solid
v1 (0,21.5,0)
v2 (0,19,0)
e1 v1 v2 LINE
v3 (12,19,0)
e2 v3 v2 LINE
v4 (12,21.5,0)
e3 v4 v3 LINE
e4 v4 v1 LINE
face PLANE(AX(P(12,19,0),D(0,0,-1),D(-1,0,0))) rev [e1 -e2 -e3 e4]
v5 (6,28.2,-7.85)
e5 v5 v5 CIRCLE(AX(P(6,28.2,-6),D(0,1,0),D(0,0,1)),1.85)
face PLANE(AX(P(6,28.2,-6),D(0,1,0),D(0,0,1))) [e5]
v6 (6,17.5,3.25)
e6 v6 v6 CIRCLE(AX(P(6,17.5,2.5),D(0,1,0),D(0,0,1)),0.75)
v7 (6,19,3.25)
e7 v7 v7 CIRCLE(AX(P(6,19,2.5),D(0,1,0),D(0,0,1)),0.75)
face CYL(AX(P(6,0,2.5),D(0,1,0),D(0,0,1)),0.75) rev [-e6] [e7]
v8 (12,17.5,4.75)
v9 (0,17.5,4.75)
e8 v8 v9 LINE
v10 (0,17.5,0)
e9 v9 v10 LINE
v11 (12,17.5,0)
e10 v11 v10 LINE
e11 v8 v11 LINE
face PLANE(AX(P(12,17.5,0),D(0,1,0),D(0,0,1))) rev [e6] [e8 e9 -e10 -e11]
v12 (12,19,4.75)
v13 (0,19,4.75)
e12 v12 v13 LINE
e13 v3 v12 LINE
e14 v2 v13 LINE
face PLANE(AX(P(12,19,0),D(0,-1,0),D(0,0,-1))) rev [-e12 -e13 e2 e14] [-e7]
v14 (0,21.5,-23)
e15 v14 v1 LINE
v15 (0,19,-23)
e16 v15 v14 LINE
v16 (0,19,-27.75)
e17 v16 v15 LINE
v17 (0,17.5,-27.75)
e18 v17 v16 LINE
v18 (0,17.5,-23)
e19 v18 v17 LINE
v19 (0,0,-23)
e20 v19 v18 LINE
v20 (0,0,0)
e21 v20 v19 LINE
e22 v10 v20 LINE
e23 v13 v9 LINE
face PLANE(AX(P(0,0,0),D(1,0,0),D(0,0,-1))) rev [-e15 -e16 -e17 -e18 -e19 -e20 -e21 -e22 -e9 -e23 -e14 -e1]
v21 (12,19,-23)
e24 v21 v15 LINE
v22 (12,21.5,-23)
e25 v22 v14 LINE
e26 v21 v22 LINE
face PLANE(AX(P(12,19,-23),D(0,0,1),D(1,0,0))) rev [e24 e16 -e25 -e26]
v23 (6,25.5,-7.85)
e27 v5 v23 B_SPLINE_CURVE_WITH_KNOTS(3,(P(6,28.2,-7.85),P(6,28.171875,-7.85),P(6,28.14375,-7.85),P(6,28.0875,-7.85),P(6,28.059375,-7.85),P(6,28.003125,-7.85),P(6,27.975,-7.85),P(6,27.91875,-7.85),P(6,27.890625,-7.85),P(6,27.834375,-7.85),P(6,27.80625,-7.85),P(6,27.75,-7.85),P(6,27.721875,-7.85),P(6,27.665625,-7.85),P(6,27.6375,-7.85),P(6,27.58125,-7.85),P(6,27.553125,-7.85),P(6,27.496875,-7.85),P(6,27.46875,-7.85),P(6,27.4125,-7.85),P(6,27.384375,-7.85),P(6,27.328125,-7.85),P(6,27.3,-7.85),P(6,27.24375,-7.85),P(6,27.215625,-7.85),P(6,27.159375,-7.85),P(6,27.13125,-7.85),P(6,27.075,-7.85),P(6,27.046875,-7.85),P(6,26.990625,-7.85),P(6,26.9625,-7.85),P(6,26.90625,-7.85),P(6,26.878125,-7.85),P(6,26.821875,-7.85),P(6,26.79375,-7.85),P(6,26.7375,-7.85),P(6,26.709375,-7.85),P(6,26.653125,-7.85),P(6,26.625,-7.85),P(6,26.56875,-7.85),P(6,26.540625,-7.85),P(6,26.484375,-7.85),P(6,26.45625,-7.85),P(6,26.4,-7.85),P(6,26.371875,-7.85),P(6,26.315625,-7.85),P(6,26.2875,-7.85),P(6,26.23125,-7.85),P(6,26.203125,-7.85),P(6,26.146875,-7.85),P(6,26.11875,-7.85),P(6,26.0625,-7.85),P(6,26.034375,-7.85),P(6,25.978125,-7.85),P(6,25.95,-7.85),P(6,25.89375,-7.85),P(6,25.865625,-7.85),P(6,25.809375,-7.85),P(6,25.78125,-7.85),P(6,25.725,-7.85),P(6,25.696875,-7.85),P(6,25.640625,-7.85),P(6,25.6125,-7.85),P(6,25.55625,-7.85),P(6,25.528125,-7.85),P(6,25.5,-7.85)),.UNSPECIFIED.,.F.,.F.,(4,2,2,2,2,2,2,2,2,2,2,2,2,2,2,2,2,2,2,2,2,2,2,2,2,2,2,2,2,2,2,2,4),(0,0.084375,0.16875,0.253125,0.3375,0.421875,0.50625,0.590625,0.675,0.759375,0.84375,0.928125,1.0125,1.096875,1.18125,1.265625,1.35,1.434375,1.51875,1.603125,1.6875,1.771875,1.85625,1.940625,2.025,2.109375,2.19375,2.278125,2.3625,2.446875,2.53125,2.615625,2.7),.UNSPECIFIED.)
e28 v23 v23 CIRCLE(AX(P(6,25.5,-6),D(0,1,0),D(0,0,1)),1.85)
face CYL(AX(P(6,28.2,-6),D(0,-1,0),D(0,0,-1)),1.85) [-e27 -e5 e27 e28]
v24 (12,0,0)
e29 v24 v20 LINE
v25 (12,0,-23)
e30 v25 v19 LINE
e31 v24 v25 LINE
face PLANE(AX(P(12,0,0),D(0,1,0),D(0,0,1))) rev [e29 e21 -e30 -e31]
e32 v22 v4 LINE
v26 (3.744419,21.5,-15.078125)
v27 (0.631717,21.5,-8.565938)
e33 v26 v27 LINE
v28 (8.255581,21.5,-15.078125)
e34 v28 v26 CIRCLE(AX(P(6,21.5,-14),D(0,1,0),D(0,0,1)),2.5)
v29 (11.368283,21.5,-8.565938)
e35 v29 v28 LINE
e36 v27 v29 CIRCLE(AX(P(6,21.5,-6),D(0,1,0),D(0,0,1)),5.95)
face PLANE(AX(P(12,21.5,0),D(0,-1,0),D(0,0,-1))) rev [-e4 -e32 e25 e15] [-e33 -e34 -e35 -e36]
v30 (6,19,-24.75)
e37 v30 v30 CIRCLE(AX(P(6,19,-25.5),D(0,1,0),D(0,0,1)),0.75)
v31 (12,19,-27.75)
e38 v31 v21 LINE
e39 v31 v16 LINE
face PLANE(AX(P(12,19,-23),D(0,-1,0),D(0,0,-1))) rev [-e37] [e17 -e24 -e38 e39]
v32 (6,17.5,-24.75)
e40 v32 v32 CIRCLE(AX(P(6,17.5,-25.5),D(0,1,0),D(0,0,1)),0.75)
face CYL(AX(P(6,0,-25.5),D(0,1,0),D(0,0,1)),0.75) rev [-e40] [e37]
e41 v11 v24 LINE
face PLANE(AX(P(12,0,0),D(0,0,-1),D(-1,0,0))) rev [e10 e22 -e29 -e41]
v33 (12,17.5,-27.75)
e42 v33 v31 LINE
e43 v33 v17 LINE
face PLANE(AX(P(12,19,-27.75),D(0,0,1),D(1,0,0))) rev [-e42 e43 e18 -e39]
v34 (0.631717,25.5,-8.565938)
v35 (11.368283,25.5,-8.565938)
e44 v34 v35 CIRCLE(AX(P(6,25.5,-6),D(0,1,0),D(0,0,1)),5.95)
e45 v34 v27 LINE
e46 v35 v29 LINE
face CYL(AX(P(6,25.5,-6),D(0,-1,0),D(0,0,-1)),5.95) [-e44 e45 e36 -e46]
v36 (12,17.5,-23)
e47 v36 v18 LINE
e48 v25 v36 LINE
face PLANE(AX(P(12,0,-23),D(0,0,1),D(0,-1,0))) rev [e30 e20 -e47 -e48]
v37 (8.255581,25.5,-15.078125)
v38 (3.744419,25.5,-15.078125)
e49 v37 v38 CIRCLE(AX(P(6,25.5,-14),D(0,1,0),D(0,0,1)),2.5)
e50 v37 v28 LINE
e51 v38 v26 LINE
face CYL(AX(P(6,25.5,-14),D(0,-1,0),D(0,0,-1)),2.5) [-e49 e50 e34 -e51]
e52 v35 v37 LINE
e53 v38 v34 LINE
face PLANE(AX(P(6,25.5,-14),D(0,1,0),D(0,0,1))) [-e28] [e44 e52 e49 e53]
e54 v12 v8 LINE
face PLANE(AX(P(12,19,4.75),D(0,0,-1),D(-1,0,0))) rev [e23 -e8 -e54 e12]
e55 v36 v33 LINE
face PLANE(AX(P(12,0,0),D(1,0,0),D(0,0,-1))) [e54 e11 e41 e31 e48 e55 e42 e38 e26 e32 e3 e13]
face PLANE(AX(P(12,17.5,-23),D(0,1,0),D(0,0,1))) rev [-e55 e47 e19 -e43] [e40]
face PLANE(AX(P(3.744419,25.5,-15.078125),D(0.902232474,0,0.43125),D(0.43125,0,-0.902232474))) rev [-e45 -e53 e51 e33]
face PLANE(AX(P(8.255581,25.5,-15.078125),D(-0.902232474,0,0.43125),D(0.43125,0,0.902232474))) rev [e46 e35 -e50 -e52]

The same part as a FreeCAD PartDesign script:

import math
import FreeCAD as App
import Part
import Sketcher

doc = App.newDocument("Part")
body = doc.addObject("PartDesign::Body", "Body")

# Sketch on YZ plane
sketch1 = body.newObject("Sketcher::SketchObject", "Sketch")
sketch1.AttachmentSupport = (doc.getObject("YZ_Plane"), [""])
sketch1.MapMode = "FlatFace"
sketch1.addGeometry(Part.LineSegment(App.Vector(0, 0, 0), App.Vector(0, -23, 0)), False)
sketch1.addGeometry(Part.LineSegment(App.Vector(0, -23, 0), App.Vector(17.5, -23, 0)), False)
sketch1.addGeometry(Part.LineSegment(App.Vector(17.5, -23, 0), App.Vector(17.5, -27.75, 0)), False)
sketch1.addGeometry(Part.LineSegment(App.Vector(17.5, -27.75, 0), App.Vector(19, -27.75, 0)), False)
sketch1.addGeometry(Part.LineSegment(App.Vector(19, -27.75, 0), App.Vector(19, -23, 0)), False)
sketch1.addGeometry(Part.LineSegment(App.Vector(19, -23, 0), App.Vector(21.5, -23, 0)), False)
sketch1.addGeometry(Part.LineSegment(App.Vector(21.5, -23, 0), App.Vector(21.5, 0, 0)), False)
sketch1.addGeometry(Part.LineSegment(App.Vector(21.5, 0, 0), App.Vector(19, 0, 0)), False)
sketch1.addGeometry(Part.LineSegment(App.Vector(19, 0, 0), App.Vector(19, 4.75, 0)), False)
sketch1.addGeometry(Part.LineSegment(App.Vector(19, 4.75, 0), App.Vector(17.5, 4.75, 0)), False)
sketch1.addGeometry(Part.LineSegment(App.Vector(17.5, 4.75, 0), App.Vector(17.5, 0, 0)), False)
sketch1.addGeometry(Part.LineSegment(App.Vector(17.5, 0, 0), App.Vector(0, 0, 0)), False)
sketch1.addConstraint(Sketcher.Constraint("Coincident", 0, 2, 1, 1))
sketch1.addConstraint(Sketcher.Constraint("Coincident", 1, 2, 2, 1))
sketch1.addConstraint(Sketcher.Constraint("Coincident", 2, 2, 3, 1))
sketch1.addConstraint(Sketcher.Constraint("Coincident", 3, 2, 4, 1))
sketch1.addConstraint(Sketcher.Constraint("Coincident", 4, 2, 5, 1))
sketch1.addConstraint(Sketcher.Constraint("Coincident", 5, 2, 6, 1))
sketch1.addConstraint(Sketcher.Constraint("Coincident", 6, 2, 7, 1))
sketch1.addConstraint(Sketcher.Constraint("Coincident", 7, 2, 8, 1))
sketch1.addConstraint(Sketcher.Constraint("Coincident", 8, 2, 9, 1))
sketch1.addConstraint(Sketcher.Constraint("Coincident", 9, 2, 10, 1))
sketch1.addConstraint(Sketcher.Constraint("Coincident", 10, 2, 11, 1))
sketch1.addConstraint(Sketcher.Constraint("Coincident", 11, 2, 0, 1))
sketch1.addConstraint(Sketcher.Constraint("Vertical", 0))
sketch1.addConstraint(Sketcher.Constraint("Horizontal", 1))
sketch1.addConstraint(Sketcher.Constraint("Vertical", 2))
sketch1.addConstraint(Sketcher.Constraint("Horizontal", 3))
sketch1.addConstraint(Sketcher.Constraint("Vertical", 4))
sketch1.addConstraint(Sketcher.Constraint("Horizontal", 5))
sketch1.addConstraint(Sketcher.Constraint("Vertical", 6))
sketch1.addConstraint(Sketcher.Constraint("Horizontal", 7))
sketch1.addConstraint(Sketcher.Constraint("Vertical", 8))
sketch1.addConstraint(Sketcher.Constraint("Horizontal", 9))
sketch1.addConstraint(Sketcher.Constraint("Vertical", 10))
sketch1.addConstraint(Sketcher.Constraint("Horizontal", 11))
sketch1.addConstraint(Sketcher.Constraint("Coincident", 11, 2, -1, 1))
sketch1.addConstraint(Sketcher.Constraint("PointOnObject", 6, 2, -1))
sketch1.addConstraint(Sketcher.Constraint("Horizontal", 1, 2, 4, 2))
sketch1.addConstraint(Sketcher.Constraint("Vertical", 4, 2, 7, 2))
sketch1.addConstraint(Sketcher.Constraint("Vertical", 2, 2, 9, 2))
sketch1.addConstraint(Sketcher.Constraint("Equal", 4, 8))
sketch1.addConstraint(Sketcher.Constraint("DistanceY", 0, 2, 0, 1, 23.0))
sketch1.addConstraint(Sketcher.Constraint("DistanceX", 1, 1, 1, 2, 17.5))
sketch1.addConstraint(Sketcher.Constraint("DistanceX", 3, 1, 3, 2, 1.5))
sketch1.addConstraint(Sketcher.Constraint("DistanceX", 5, 1, 5, 2, 2.5))
sketch1.addConstraint(Sketcher.Constraint("DistanceY", 2, 2, 2, 1, 4.75))
pad1 = body.newObject("PartDesign::Pad", "Pad")
pad1.Profile = sketch1
pad1.Length = 12

# Sketch on XZ plane
sketch2 = body.newObject("Sketcher::SketchObject", "Sketch001")
sketch2.AttachmentSupport = (doc.getObject("XZ_Plane"), [""])
sketch2.MapMode = "FlatFace"
sketch2.AttachmentOffset = App.Placement(App.Vector(0, 0, -21.5), App.Rotation())
sketch2.addGeometry(Part.LineSegment(App.Vector(3.744419, -15.078125, 0), App.Vector(0.631717, -8.565938, 0)), False)
sketch2.addGeometry(Part.ArcOfCircle(Part.Circle(App.Vector(6, -6, 0), App.Vector(0, 0, 1), 5.95), math.radians(-25.546914), math.radians(205.546914)), False)
sketch2.addGeometry(Part.LineSegment(App.Vector(11.368283, -8.565938, 0), App.Vector(8.255581, -15.078125, 0)), False)
sketch2.addGeometry(Part.ArcOfCircle(Part.Circle(App.Vector(6, -14, 0), App.Vector(0, 0, 1), 2.5), math.radians(-154.453086), math.radians(-25.546914)), False)
sketch2.addConstraint(Sketcher.Constraint("Tangent", 0, 2, 1, 2))
sketch2.addConstraint(Sketcher.Constraint("Tangent", 1, 1, 2, 1))
sketch2.addConstraint(Sketcher.Constraint("Tangent", 2, 2, 3, 2))
sketch2.addConstraint(Sketcher.Constraint("Tangent", 3, 1, 0, 1))
sketch2.addConstraint(Sketcher.Constraint("Horizontal", 0, 2, 1, 1))
sketch2.addConstraint(Sketcher.Constraint("Radius", 3, 2.5))
sketch2.addConstraint(Sketcher.Constraint("Radius", 1, 5.95))
sketch2.addConstraint(Sketcher.Constraint("DistanceX", -1, 1, 1, 3, 6.0))
sketch2.addConstraint(Sketcher.Constraint("DistanceY", 1, 3, -1, 1, 6.0))
sketch2.addConstraint(Sketcher.Constraint("DistanceY", 3, 3, -1, 1, 14.0))
pad2 = body.newObject("PartDesign::Pad", "Pad001")
pad2.Profile = sketch2
pad2.Length = 4
pad2.Reversed = True

# Sketch on XZ plane
sketch3 = body.newObject("Sketcher::SketchObject", "Sketch002")
sketch3.AttachmentSupport = (doc.getObject("XZ_Plane"), [""])
sketch3.MapMode = "FlatFace"
sketch3.AttachmentOffset = App.Placement(App.Vector(0, 0, -25.5), App.Rotation())
sketch3.addGeometry(Part.Circle(App.Vector(6, -6, 0), App.Vector(0, 0, 1), 1.85), False)
sketch3.addConstraint(Sketcher.Constraint("Diameter", 0, 3.7))
sketch3.addConstraint(Sketcher.Constraint("DistanceX", -1, 1, 0, 3, 6.0))
sketch3.addConstraint(Sketcher.Constraint("DistanceY", 0, 3, -1, 1, 6.0))
pad3 = body.newObject("PartDesign::Pad", "Pad002")
pad3.Profile = sketch3
pad3.Length = 2.7
pad3.Reversed = True

# Sketch on XZ plane
sketch4 = body.newObject("Sketcher::SketchObject", "Sketch003")
sketch4.AttachmentSupport = (doc.getObject("XZ_Plane"), [""])
sketch4.MapMode = "FlatFace"
sketch4.AttachmentOffset = App.Placement(App.Vector(0, 0, -19), App.Rotation())
sketch4.addGeometry(Part.Circle(App.Vector(6, 2.5, 0), App.Vector(0, 0, 1), 0.75), False)
sketch4.addGeometry(Part.Circle(App.Vector(6, -25.5, 0), App.Vector(0, 0, 1), 0.75), False)
sketch4.addConstraint(Sketcher.Constraint("Equal", 0, 1))
sketch4.addConstraint(Sketcher.Constraint("Vertical", 0, 3, 1, 3))
sketch4.addConstraint(Sketcher.Constraint("Diameter", 0, 1.5))
sketch4.addConstraint(Sketcher.Constraint("DistanceX", -1, 1, 0, 3, 6.0))
sketch4.addConstraint(Sketcher.Constraint("DistanceY", 1, 3, 0, 3, 28.0))
sketch4.addConstraint(Sketcher.Constraint("DistanceY", -1, 1, 0, 3, 2.5))
pocket1 = body.newObject("PartDesign::Pocket", "Pocket")
pocket1.Profile = sketch4
pocket1.Type = "ThroughAll"
pocket1.Reversed = True

doc.recompute()
